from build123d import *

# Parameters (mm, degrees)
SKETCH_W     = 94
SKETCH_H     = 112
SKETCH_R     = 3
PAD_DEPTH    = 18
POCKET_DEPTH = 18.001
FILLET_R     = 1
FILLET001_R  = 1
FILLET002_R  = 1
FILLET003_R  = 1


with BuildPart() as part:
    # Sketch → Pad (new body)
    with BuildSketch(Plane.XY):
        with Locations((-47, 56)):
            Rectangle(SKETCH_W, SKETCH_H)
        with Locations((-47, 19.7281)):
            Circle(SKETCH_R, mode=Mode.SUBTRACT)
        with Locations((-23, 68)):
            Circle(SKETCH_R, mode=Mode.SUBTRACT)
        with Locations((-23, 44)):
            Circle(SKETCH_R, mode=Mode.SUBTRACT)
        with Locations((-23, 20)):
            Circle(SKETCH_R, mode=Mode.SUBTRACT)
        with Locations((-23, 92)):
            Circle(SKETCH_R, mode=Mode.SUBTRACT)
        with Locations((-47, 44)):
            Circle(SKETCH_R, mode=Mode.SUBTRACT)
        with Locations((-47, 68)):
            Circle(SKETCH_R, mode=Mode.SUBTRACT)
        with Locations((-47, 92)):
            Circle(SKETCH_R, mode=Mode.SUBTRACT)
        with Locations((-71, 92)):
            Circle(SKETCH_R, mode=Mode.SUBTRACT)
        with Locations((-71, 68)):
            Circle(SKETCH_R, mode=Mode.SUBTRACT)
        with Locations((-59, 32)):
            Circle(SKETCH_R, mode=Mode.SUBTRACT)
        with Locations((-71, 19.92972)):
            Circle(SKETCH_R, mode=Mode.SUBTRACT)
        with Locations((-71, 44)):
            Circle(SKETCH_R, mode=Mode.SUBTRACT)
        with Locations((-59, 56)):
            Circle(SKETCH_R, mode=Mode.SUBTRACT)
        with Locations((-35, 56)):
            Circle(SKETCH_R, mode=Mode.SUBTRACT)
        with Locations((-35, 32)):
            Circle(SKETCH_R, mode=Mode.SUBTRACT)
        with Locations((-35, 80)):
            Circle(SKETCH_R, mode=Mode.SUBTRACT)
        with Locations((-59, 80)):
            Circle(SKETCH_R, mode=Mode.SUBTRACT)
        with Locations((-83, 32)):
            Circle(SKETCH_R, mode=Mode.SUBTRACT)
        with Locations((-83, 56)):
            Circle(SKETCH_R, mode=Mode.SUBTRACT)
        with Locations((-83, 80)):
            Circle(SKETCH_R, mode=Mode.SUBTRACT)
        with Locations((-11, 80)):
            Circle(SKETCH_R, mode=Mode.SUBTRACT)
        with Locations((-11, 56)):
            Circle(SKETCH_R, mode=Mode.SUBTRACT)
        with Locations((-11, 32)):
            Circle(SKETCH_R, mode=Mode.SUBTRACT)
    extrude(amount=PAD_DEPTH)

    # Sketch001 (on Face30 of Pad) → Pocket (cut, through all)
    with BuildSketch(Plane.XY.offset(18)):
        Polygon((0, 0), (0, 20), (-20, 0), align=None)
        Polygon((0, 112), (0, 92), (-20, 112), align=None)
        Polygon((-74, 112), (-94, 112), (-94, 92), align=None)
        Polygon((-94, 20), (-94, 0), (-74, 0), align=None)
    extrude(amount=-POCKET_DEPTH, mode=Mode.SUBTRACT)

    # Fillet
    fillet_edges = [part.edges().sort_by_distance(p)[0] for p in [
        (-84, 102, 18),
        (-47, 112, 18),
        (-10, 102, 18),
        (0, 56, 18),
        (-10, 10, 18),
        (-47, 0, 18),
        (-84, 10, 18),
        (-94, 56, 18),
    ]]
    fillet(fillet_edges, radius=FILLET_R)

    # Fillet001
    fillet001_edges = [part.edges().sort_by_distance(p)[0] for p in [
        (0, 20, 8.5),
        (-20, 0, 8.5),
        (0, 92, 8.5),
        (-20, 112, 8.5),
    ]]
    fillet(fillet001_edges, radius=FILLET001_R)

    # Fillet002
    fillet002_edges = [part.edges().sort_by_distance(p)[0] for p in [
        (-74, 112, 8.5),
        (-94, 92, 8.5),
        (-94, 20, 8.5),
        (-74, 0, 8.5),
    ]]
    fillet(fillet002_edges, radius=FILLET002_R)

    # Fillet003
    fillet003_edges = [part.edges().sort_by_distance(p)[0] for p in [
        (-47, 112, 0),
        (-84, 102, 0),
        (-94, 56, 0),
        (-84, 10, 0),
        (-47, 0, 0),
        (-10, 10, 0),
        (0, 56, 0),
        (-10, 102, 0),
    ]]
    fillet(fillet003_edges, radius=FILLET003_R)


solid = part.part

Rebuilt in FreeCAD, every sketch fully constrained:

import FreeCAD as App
import Part
import Sketcher

V = App.Vector
Q = App.Units.Quantity


def edges_at(feature, points):
    """Names of the edges that pass closest to the given points."""
    edges = feature.Shape.Edges
    near = lambda p: min(range(len(edges)), key=lambda i: edges[i].distToShape(Part.Vertex(*p))[0])
    return sorted({f"Edge{near(p) + 1}" for p in points})

doc = App.newDocument("Part")
body = doc.addObject("PartDesign::Body", "Body")

sketch1 = body.newObject("Sketcher::SketchObject", "Sketch")
sketch1.AttachmentSupport = (doc.getObject("XY_Plane"), [""])
sketch1.MapMode = "FlatFace"
sketch1.addGeometry([
    Part.LineSegment(V(-94, 112, 0), V(-94, 0, 0)),
    Part.LineSegment(V(-94, 0, 0), V(0, 0, 0)),
    Part.LineSegment(V(0, 0, 0), V(0, 112, 0)),
    Part.LineSegment(V(0, 112, 0), V(-94, 112, 0)),
    Part.Circle(V(-71, 19.92972, 0), V(0, 0, 1), 3),
    Part.Circle(V(-83, 32, 0), V(0, 0, 1), 3),
    Part.Circle(V(-59, 32, 0), V(0, 0, 1), 3),
    Part.Circle(V(-71, 44, 0), V(0, 0, 1), 3),
    Part.Circle(V(-47, 19.7281, 0), V(0, 0, 1), 3),
    Part.Circle(V(-35, 32, 0), V(0, 0, 1), 3),
    Part.Circle(V(-23, 20, 0), V(0, 0, 1), 3),
    Part.Circle(V(-11, 32, 0), V(0, 0, 1), 3),
    Part.Circle(V(-47, 44, 0), V(0, 0, 1), 3),
    Part.Circle(V(-23, 44, 0), V(0, 0, 1), 3),
    Part.Circle(V(-83, 56, 0), V(0, 0, 1), 3),
    Part.Circle(V(-71, 68, 0), V(0, 0, 1), 3),
    Part.Circle(V(-59, 56, 0), V(0, 0, 1), 3),
    Part.Circle(V(-83, 80, 0), V(0, 0, 1), 3),
    Part.Circle(V(-71, 92, 0), V(0, 0, 1), 3),
    Part.Circle(V(-59, 80, 0), V(0, 0, 1), 3),
    Part.Circle(V(-35, 56, 0), V(0, 0, 1), 3),
    Part.Circle(V(-47, 68, 0), V(0, 0, 1), 3),
    Part.Circle(V(-11, 56, 0), V(0, 0, 1), 3),
    Part.Circle(V(-23, 68, 0), V(0, 0, 1), 3),
    Part.Circle(V(-35, 80, 0), V(0, 0, 1), 3),
    Part.Circle(V(-47, 92, 0), V(0, 0, 1), 3),
    Part.Circle(V(-11, 80, 0), V(0, 0, 1), 3),
    Part.Circle(V(-23, 92, 0), V(0, 0, 1), 3),
], False)
sketch1.addConstraint([
    Sketcher.Constraint("Coincident", 0, 2, 1, 1),
    Sketcher.Constraint("Coincident", 1, 2, 2, 1),
    Sketcher.Constraint("Coincident", 2, 2, 3, 1),
    Sketcher.Constraint("Coincident", 3, 2, 0, 1),
    Sketcher.Constraint("Vertical", 0),
    Sketcher.Constraint("Horizontal", 1),
    Sketcher.Constraint("Vertical", 2),
    Sketcher.Constraint("Horizontal", 3),
    Sketcher.Constraint("Coincident", 1, 2, -1, 1),
    Sketcher.Constraint("Equal", 4, 5),
    Sketcher.Constraint("Equal", 5, 6),
    Sketcher.Constraint("Equal", 6, 7),
    Sketcher.Constraint("Equal", 7, 8),
    Sketcher.Constraint("Equal", 8, 9),
    Sketcher.Constraint("Equal", 9, 10),
    Sketcher.Constraint("Equal", 10, 11),
    Sketcher.Constraint("Equal", 11, 12),
    Sketcher.Constraint("Equal", 12, 13),
    Sketcher.Constraint("Equal", 13, 14),
    Sketcher.Constraint("Equal", 14, 15),
    Sketcher.Constraint("Equal", 15, 16),
    Sketcher.Constraint("Equal", 16, 17),
    Sketcher.Constraint("Equal", 17, 18),
    Sketcher.Constraint("Equal", 18, 19),
    Sketcher.Constraint("Equal", 19, 20),
    Sketcher.Constraint("Equal", 20, 21),
    Sketcher.Constraint("Equal", 21, 22),
    Sketcher.Constraint("Equal", 22, 23),
    Sketcher.Constraint("Equal", 23, 24),
    Sketcher.Constraint("Equal", 24, 25),
    Sketcher.Constraint("Equal", 25, 26),
    Sketcher.Constraint("Equal", 26, 27),
    Sketcher.Constraint("Horizontal", 5, 3, 6, 3),
    Sketcher.Constraint("Horizontal", 6, 3, 9, 3),
    Sketcher.Constraint("Horizontal", 9, 3, 11, 3),
    Sketcher.Constraint("Horizontal", 7, 3, 12, 3),
    Sketcher.Constraint("Horizontal", 12, 3, 13, 3),
    Sketcher.Constraint("Horizontal", 14, 3, 16, 3),
    Sketcher.Constraint("Horizontal", 17, 3, 19, 3),
    Sketcher.Constraint("Horizontal", 16, 3, 20, 3),
    Sketcher.Constraint("Horizontal", 15, 3, 21, 3),
    Sketcher.Constraint("Horizontal", 20, 3, 22, 3),
    Sketcher.Constraint("Horizontal", 21, 3, 23, 3),
    Sketcher.Constraint("Horizontal", 19, 3, 24, 3),
    Sketcher.Constraint("Horizontal", 18, 3, 25, 3),
    Sketcher.Constraint("Horizontal", 24, 3, 26, 3),
    Sketcher.Constraint("Horizontal", 25, 3, 27, 3),
    Sketcher.Constraint("Vertical", 4, 3, 7, 3),
    Sketcher.Constraint("Vertical", 8, 3, 12, 3),
    Sketcher.Constraint("Vertical", 10, 3, 13, 3),
    Sketcher.Constraint("Vertical", 5, 3, 14, 3),
    Sketcher.Constraint("Vertical", 7, 3, 15, 3),
    Sketcher.Constraint("Vertical", 6, 3, 16, 3),
    Sketcher.Constraint("Vertical", 14, 3, 17, 3),
    Sketcher.Constraint("Vertical", 15, 3, 18, 3),
    Sketcher.Constraint("Vertical", 16, 3, 19, 3),
    Sketcher.Constraint("Vertical", 9, 3, 20, 3),
    Sketcher.Constraint("Vertical", 12, 3, 21, 3),
    Sketcher.Constraint("Vertical", 11, 3, 22, 3),
    Sketcher.Constraint("Vertical", 13, 3, 23, 3),
    Sketcher.Constraint("Vertical", 20, 3, 24, 3),
    Sketcher.Constraint("Vertical", 21, 3, 25, 3),
    Sketcher.Constraint("Vertical", 22, 3, 26, 3),
    Sketcher.Constraint("Vertical", 23, 3, 27, 3),
    Sketcher.Constraint("Diameter", 4, Q("6 mm")),
    Sketcher.Constraint("DistanceX", 1, 1, 1, 2, Q("94 mm")),
    Sketcher.Constraint("DistanceY", 0, 2, 0, 1, Q("112 mm")),
    Sketcher.Constraint("DistanceX", 4, 3, -1, 1, Q("71 mm")),
    Sketcher.Constraint("DistanceX", 5, 3, -1, 1, Q("83 mm")),
    Sketcher.Constraint("DistanceY", -1, 1, 5, 3, Q("32 mm")),
    Sketcher.Constraint("DistanceX", 6, 3, -1, 1, Q("59 mm")),
    Sketcher.Constraint("DistanceY", -1, 1, 7, 3, Q("44 mm")),
    Sketcher.Constraint("DistanceX", 8, 3, -1, 1, Q("47 mm")),
    Sketcher.Constraint("DistanceX", 9, 3, -1, 1, Q("35 mm")),
    Sketcher.Constraint("DistanceX", 10, 3, -1, 1, Q("23 mm")),
    Sketcher.Constraint("DistanceY", -1, 1, 10, 3, Q("20 mm")),
    Sketcher.Constraint("DistanceX", 11, 3, -1, 1, Q("11 mm")),
    Sketcher.Constraint("DistanceY", -1, 1, 14, 3, Q("56 mm")),
    Sketcher.Constraint("DistanceY", -1, 1, 15, 3, Q("68 mm")),
    Sketcher.Constraint("DistanceY", -1, 1, 17, 3, Q("80 mm")),
    Sketcher.Constraint("DistanceY", -1, 1, 18, 3, Q("92 mm")),
    Sketcher.Constraint("DistanceY", -1, 1, 8, 3, Q("19.7281 mm")),
    Sketcher.Constraint("DistanceY", -1, 1, 4, 3, Q("19.92972 mm")),
])
pad1 = body.newObject("PartDesign::Pad", "Pad")
pad1.Profile = sketch1
pad1.Length = 18

sketch2 = body.newObject("Sketcher::SketchObject", "Sketch001")
sketch2.AttachmentSupport = (doc.getObject("XY_Plane"), [""])
sketch2.MapMode = "FlatFace"
sketch2.AttachmentOffset = App.Placement(V(0, 0, 18), App.Rotation())
sketch2.addGeometry([
    Part.LineSegment(V(0, 0, 0), V(0, 20, 0)),
    Part.LineSegment(V(0, 20, 0), V(-20, 0, 0)),
    Part.LineSegment(V(-20, 0, 0), V(0, 0, 0)),
    Part.LineSegment(V(0, 92, 0), V(0, 112, 0)),
    Part.LineSegment(V(0, 112, 0), V(-20, 112, 0)),
    Part.LineSegment(V(-20, 112, 0), V(0, 92, 0)),
    Part.LineSegment(V(-74, 112, 0), V(-94, 112, 0)),
    Part.LineSegment(V(-94, 112, 0), V(-94, 92, 0)),
    Part.LineSegment(V(-94, 92, 0), V(-74, 112, 0)),
    Part.LineSegment(V(-94, 20, 0), V(-94, 0, 0)),
    Part.LineSegment(V(-94, 0, 0), V(-74, 0, 0)),
    Part.LineSegment(V(-74, 0, 0), V(-94, 20, 0)),
], False)
sketch2.addConstraint([
    Sketcher.Constraint("Coincident", 0, 2, 1, 1),
    Sketcher.Constraint("Coincident", 1, 2, 2, 1),
    Sketcher.Constraint("Coincident", 2, 2, 0, 1),
    Sketcher.Constraint("Coincident", 3, 2, 4, 1),
    Sketcher.Constraint("Coincident", 4, 2, 5, 1),
    Sketcher.Constraint("Coincident", 5, 2, 3, 1),
    Sketcher.Constraint("Coincident", 6, 2, 7, 1),
    Sketcher.Constraint("Coincident", 7, 2, 8, 1),
    Sketcher.Constraint("Coincident", 8, 2, 6, 1),
    Sketcher.Constraint("Coincident", 9, 2, 10, 1),
    Sketcher.Constraint("Coincident", 10, 2, 11, 1),
    Sketcher.Constraint("Coincident", 11, 2, 9, 1),
    Sketcher.Constraint("Vertical", 0),
    Sketcher.Constraint("Horizontal", 2),
    Sketcher.Constraint("Vertical", 3),
    Sketcher.Constraint("Horizontal", 4),
    Sketcher.Constraint("Horizontal", 6),
    Sketcher.Constraint("Vertical", 7),
    Sketcher.Constraint("Vertical", 9),
    Sketcher.Constraint("Horizontal", 10),
    Sketcher.Constraint("Coincident", 2, 2, -1, 1),
    Sketcher.Constraint("PointOnObject", 3, 2, -2),
    Sketcher.Constraint("PointOnObject", 9, 2, -1),
    Sketcher.Constraint("Perpendicular", 1, 5),
    Sketcher.Constraint("Perpendicular", 5, 8),
    Sketcher.Constraint("Perpendicular", 8, 11),
    Sketcher.Constraint("Horizontal", 4, 2, 6, 2),
    Sketcher.Constraint("Horizontal", 5, 2, 7, 2),
    Sketcher.Constraint("Horizontal", 0, 2, 11, 2),
    Sketcher.Constraint("Vertical", 1, 2, 4, 2),
    Sketcher.Constraint("Vertical", 7, 2, 9, 2),
    Sketcher.Constraint("Vertical", 8, 2, 10, 2),
    Sketcher.Constraint("DistanceX", 2, 1, 2, 2, Q("20 mm")),
    Sketcher.Constraint("DistanceY", -1, 1, 3, 2, Q("112 mm")),
    Sketcher.Constraint("DistanceX", 6, 2, -1, 1, Q("94 mm")),
])
pocket1 = body.newObject("PartDesign::Pocket", "Pocket")
pocket1.Profile = sketch2
pocket1.Type = "ThroughAll"
doc.recompute()

fillet = body.newObject("PartDesign::Fillet", "Fillet")
fillet.Base = (pocket1, edges_at(pocket1, [
    (-84, 102, 18),
    (-47, 112, 18),
    (-10, 102, 18),
    (0, 56, 18),
    (-10, 10, 18),
    (-47, 0, 18),
    (-84, 10, 18),
    (-94, 56, 18),
]))
fillet.Radius = 1
doc.recompute()

fillet2 = body.newObject("PartDesign::Fillet", "Fillet001")
fillet2.Base = (fillet, edges_at(fillet, [
    (0, 20, 8.5),
    (-20, 0, 8.5),
    (0, 92, 8.5),
    (-20, 112, 8.5),
]))
fillet2.Radius = 1
doc.recompute()

fillet3 = body.newObject("PartDesign::Fillet", "Fillet002")
fillet3.Base = (fillet2, edges_at(fillet2, [
    (-74, 112, 8.5),
    (-94, 92, 8.5),
    (-94, 20, 8.5),
    (-74, 0, 8.5),
]))
fillet3.Radius = 1
doc.recompute()

fillet4 = body.newObject("PartDesign::Fillet", "Fillet003")
fillet4.Base = (fillet3, edges_at(fillet3, [
    (-47, 112, 0),
    (-84, 102, 0),
    (-94, 56, 0),
    (-84, 10, 0),
    (-47, 0, 0),
    (-10, 10, 0),
    (0, 56, 0),
    (-10, 102, 0),
]))
fillet4.Radius = 1

doc.recompute()
